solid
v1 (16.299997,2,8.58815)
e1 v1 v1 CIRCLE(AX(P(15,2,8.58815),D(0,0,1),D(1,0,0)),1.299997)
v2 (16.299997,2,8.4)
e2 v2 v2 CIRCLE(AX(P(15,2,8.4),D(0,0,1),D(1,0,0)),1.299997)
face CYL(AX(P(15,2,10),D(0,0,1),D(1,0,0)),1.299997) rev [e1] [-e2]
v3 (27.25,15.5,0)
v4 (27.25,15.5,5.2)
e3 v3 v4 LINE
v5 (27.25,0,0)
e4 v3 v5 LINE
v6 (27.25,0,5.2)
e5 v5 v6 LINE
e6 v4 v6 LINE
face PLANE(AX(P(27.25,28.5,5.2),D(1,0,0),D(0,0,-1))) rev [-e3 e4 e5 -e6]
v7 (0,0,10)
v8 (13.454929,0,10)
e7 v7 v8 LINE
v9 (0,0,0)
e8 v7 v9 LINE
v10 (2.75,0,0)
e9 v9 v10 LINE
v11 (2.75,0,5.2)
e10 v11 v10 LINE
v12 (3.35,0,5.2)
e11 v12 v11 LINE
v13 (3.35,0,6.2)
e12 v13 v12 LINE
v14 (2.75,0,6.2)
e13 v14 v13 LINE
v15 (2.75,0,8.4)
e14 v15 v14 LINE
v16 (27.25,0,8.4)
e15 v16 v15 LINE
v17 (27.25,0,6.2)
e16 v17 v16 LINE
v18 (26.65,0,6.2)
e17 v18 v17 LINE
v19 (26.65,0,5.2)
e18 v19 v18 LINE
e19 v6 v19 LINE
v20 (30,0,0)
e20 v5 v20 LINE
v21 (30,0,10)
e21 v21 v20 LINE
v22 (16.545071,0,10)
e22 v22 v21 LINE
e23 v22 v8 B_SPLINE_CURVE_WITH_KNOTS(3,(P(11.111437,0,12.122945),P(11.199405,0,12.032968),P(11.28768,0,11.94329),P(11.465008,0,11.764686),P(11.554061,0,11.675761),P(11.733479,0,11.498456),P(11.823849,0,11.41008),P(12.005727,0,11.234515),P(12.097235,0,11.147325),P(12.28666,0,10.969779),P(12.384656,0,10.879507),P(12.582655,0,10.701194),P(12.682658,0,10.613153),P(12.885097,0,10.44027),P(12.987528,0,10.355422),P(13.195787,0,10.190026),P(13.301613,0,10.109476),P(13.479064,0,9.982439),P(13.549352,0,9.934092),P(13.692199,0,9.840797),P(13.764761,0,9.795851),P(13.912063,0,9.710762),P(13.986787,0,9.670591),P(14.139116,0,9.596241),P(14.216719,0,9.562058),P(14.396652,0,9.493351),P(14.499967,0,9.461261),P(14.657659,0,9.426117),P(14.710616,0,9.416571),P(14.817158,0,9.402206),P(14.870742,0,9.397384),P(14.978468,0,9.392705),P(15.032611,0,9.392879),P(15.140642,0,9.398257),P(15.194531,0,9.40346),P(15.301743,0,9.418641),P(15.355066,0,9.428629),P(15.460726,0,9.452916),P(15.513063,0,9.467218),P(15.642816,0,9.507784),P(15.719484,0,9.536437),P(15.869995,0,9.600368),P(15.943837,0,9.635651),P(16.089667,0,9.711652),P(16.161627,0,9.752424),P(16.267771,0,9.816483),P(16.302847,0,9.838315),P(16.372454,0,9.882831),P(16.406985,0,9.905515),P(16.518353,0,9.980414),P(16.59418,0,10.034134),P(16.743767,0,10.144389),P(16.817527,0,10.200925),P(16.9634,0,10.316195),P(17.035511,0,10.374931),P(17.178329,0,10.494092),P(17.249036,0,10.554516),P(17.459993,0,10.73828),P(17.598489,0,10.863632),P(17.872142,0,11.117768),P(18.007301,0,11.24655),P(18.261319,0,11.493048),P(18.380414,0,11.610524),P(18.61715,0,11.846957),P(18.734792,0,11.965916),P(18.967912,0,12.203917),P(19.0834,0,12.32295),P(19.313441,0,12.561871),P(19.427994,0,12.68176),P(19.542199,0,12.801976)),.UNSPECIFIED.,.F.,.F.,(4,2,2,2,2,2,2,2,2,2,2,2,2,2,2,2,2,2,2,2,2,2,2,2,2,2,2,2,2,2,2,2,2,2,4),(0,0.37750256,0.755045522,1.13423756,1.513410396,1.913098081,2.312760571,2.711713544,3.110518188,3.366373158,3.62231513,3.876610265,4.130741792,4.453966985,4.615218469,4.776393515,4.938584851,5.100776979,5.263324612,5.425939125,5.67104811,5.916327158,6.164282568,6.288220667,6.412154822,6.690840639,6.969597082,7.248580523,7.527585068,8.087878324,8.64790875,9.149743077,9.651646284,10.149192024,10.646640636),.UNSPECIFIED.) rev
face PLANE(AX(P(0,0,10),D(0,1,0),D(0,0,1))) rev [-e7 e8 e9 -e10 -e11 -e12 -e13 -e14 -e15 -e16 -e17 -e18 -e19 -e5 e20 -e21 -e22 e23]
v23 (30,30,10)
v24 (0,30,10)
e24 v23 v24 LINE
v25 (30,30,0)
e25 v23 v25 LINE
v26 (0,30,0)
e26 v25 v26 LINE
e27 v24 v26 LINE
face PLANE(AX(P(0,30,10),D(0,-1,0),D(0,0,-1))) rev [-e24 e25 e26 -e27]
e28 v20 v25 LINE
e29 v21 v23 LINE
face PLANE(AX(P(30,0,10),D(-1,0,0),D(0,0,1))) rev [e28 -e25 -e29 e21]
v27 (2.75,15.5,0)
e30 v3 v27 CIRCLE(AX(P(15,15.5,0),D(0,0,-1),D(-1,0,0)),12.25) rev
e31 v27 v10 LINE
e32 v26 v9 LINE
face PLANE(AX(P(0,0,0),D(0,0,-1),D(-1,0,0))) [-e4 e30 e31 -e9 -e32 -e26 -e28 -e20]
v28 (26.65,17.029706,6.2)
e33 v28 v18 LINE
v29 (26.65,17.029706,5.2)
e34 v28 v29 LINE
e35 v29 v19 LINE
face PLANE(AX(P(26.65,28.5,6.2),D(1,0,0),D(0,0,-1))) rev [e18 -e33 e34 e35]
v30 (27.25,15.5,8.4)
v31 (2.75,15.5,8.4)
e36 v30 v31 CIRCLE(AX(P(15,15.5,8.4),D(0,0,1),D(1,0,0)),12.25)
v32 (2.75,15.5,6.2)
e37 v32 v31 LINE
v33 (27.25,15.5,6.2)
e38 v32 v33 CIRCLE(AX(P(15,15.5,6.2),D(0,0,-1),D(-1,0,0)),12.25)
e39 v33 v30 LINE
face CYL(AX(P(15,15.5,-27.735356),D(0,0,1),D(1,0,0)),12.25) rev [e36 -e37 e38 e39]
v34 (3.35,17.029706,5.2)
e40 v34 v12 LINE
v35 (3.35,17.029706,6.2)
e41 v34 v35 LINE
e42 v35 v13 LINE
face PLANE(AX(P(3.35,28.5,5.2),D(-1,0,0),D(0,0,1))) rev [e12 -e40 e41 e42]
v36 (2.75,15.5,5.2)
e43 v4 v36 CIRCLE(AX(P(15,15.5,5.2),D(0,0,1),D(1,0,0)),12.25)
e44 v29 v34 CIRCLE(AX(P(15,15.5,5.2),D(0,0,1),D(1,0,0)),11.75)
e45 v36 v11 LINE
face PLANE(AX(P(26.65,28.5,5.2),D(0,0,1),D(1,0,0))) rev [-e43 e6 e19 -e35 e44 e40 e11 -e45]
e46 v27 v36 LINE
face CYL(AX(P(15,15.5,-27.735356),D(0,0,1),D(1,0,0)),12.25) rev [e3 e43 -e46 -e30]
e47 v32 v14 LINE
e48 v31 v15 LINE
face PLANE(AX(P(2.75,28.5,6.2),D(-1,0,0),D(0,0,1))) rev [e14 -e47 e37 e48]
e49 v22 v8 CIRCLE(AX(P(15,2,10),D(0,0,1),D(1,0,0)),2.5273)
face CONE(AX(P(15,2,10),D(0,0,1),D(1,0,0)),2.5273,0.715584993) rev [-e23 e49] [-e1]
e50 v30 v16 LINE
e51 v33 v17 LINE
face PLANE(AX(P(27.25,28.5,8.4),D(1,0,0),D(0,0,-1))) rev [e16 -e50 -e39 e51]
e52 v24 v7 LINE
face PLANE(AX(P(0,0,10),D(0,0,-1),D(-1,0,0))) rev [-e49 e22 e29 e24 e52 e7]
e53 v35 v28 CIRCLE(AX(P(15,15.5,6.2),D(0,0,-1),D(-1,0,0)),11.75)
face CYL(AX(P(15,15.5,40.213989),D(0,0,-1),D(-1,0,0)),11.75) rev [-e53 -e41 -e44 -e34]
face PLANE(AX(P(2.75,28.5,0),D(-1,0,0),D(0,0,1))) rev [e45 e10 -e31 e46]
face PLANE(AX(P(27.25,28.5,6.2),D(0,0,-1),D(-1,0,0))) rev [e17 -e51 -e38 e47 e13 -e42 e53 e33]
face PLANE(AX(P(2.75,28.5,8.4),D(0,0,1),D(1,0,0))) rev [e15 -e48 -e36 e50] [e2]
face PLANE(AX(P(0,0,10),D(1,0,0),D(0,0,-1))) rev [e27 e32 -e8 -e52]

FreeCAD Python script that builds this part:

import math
import FreeCAD as App
import Part
import Sketcher

doc = App.newDocument("Part")
body = doc.addObject("PartDesign::Body", "Body")

# Sketch on XY plane
sketch1 = body.newObject("Sketcher::SketchObject", "Sketch")
sketch1.AttachmentSupport = (doc.getObject("XY_Plane"), [""])
sketch1.MapMode = "FlatFace"
sketch1.addGeometry(Part.LineSegment(App.Vector(0, 30, 0), App.Vector(0, 0, 0)), False)
sketch1.addGeometry(Part.LineSegment(App.Vector(0, 0, 0), App.Vector(30, 0, 0)), False)
sketch1.addGeometry(Part.LineSegment(App.Vector(30, 0, 0), App.Vector(30, 30, 0)), False)
sketch1.addGeometry(Part.LineSegment(App.Vector(30, 30, 0), App.Vector(0, 30, 0)), False)
sketch1.addConstraint(Sketcher.Constraint("Coincident", 0, 2, 1, 1))
sketch1.addConstraint(Sketcher.Constraint("Coincident", 1, 2, 2, 1))
sketch1.addConstraint(Sketcher.Constraint("Coincident", 2, 2, 3, 1))
sketch1.addConstraint(Sketcher.Constraint("Coincident", 3, 2, 0, 1))
sketch1.addConstraint(Sketcher.Constraint("Vertical", 0))
sketch1.addConstraint(Sketcher.Constraint("Horizontal", 1))
sketch1.addConstraint(Sketcher.Constraint("Vertical", 2))
sketch1.addConstraint(Sketcher.Constraint("Horizontal", 3))
sketch1.addConstraint(Sketcher.Constraint("Coincident", 0, 2, -1, 1))
sketch1.addConstraint(Sketcher.Constraint("Equal", 3, 0))
sketch1.addConstraint(Sketcher.Constraint("DistanceX", 1, 1, 1, 2, 30.0))
pad1 = body.newObject("PartDesign::Pad", "Pad")
pad1.Profile = sketch1
pad1.Length = 10

# Sketch on XZ plane
sketch2 = body.newObject("Sketcher::SketchObject", "Sketch001")
sketch2.AttachmentSupport = (doc.getObject("XZ_Plane"), [""])
sketch2.MapMode = "FlatFace"
sketch2.addGeometry(Part.LineSegment(App.Vector(2.8, 5.2, 0), App.Vector(2.8, 0, 0)), False)
sketch2.addGeometry(Part.LineSegment(App.Vector(2.8, 0, 0), App.Vector(27.2, 0, 0)), False)
sketch2.addGeometry(Part.LineSegment(App.Vector(27.2, 0, 0), App.Vector(27.2, 5.2, 0)), False)
sketch2.addGeometry(Part.LineSegment(App.Vector(27.2, 5.2, 0), App.Vector(26.6, 5.2, 0)), False)
sketch2.addGeometry(Part.LineSegment(App.Vector(26.6, 5.2, 0), App.Vector(26.6, 6.2, 0)), False)
sketch2.addGeometry(Part.LineSegment(App.Vector(26.6, 6.2, 0), App.Vector(27.2, 6.2, 0)), False)
sketch2.addGeometry(Part.LineSegment(App.Vector(27.2, 6.2, 0), App.Vector(27.2, 8.4, 0)), False)
sketch2.addGeometry(Part.LineSegment(App.Vector(27.2, 8.4, 0), App.Vector(2.8, 8.4, 0)), False)
sketch2.addGeometry(Part.LineSegment(App.Vector(2.8, 8.4, 0), App.Vector(2.8, 6.2, 0)), False)
sketch2.addGeometry(Part.LineSegment(App.Vector(2.8, 6.2, 0), App.Vector(3.4, 6.2, 0)), False)
sketch2.addGeometry(Part.LineSegment(App.Vector(3.4, 6.2, 0), App.Vector(3.4, 5.2, 0)), False)
sketch2.addGeometry(Part.LineSegment(App.Vector(3.4, 5.2, 0), App.Vector(2.8, 5.2, 0)), False)
sketch2.addConstraint(Sketcher.Constraint("Coincident", 0, 2, 1, 1))
sketch2.addConstraint(Sketcher.Constraint("Coincident", 1, 2, 2, 1))
sketch2.addConstraint(Sketcher.Constraint("Coincident", 2, 2, 3, 1))
sketch2.addConstraint(Sketcher.Constraint("Coincident", 3, 2, 4, 1))
sketch2.addConstraint(Sketcher.Constraint("Coincident", 4, 2, 5, 1))
sketch2.addConstraint(Sketcher.Constraint("Coincident", 5, 2, 6, 1))
sketch2.addConstraint(Sketcher.Constraint("Coincident", 6, 2, 7, 1))
sketch2.addConstraint(Sketcher.Constraint("Coincident", 7, 2, 8, 1))
sketch2.addConstraint(Sketcher.Constraint("Coincident", 8, 2, 9, 1))
sketch2.addConstraint(Sketcher.Constraint("Coincident", 9, 2, 10, 1))
sketch2.addConstraint(Sketcher.Constraint("Coincident", 10, 2, 11, 1))
sketch2.addConstraint(Sketcher.Constraint("Coincident", 11, 2, 0, 1))
sketch2.addConstraint(Sketcher.Constraint("Vertical", 0))
sketch2.addConstraint(Sketcher.Constraint("Horizontal", 1))
sketch2.addConstraint(Sketcher.Constraint("Vertical", 2))
sketch2.addConstraint(Sketcher.Constraint("Horizontal", 3))
sketch2.addConstraint(Sketcher.Constraint("Vertical", 4))
sketch2.addConstraint(Sketcher.Constraint("Horizontal", 5))
sketch2.addConstraint(Sketcher.Constraint("Vertical", 6))
sketch2.addConstraint(Sketcher.Constraint("Horizontal", 7))
sketch2.addConstraint(Sketcher.Constraint("Vertical", 8))
sketch2.addConstraint(Sketcher.Constraint("Horizontal", 9))
sketch2.addConstraint(Sketcher.Constraint("Vertical", 10))
sketch2.addConstraint(Sketcher.Constraint("Horizontal", 11))
sketch2.addConstraint(Sketcher.Constraint("PointOnObject", 0, 2, -1))
sketch2.addConstraint(Sketcher.Constraint("Horizontal", 5, 2, 8, 2))
sketch2.addConstraint(Sketcher.Constraint("Horizontal", 3, 2, 10, 2))
sketch2.addConstraint(Sketcher.Constraint("Vertical", 2, 2, 5, 2))
sketch2.addConstraint(Sketcher.Constraint("Vertical", 0, 2, 7, 2))
sketch2.addConstraint(Sketcher.Constraint("Equal", 5, 9))
sketch2.addConstraint(Sketcher.Constraint("DistanceY", 4, 1, 4, 2, 1.0))
sketch2.addConstraint(Sketcher.Constraint("DistanceX", 1, 1, 1, 2, 24.5))
sketch2.addConstraint(Sketcher.Constraint("DistanceX", 3, 2, 3, 1, 0.6))
sketch2.addConstraint(Sketcher.Constraint("DistanceY", 0, 2, 0, 1, 5.2))
sketch2.addConstraint(Sketcher.Constraint("DistanceY", 6, 1, 6, 2, 2.2))
sketch2.addConstraint(Sketcher.Constraint("DistanceX", -1, 1, 0, 2, 2.75))
pocket1 = body.newObject("PartDesign::Pocket", "Pocket")
pocket1.Profile = sketch2
pocket1.Length = 28.5

# Sketch on XY plane
sketch3 = body.newObject("Sketcher::SketchObject", "Sketch002")
sketch3.AttachmentSupport = (doc.getObject("XY_Plane"), [""])
sketch3.MapMode = "FlatFace"
sketch3.AttachmentOffset = App.Placement(App.Vector(0, 0, 8.4), App.Rotation())
sketch3.addGeometry(Part.LineSegment(App.Vector(27, 28, 0), App.Vector(27, 16, 0)), False)
sketch3.addGeometry(Part.ArcOfCircle(Part.Circle(App.Vector(15, 16, 0), App.Vector(0, 0, 1), 12), math.radians(0), math.radians(180)), False)
sketch3.addGeometry(Part.LineSegment(App.Vector(3, 16, 0), App.Vector(3, 28, 0)), False)
sketch3.addGeometry(Part.LineSegment(App.Vector(3, 28, 0), App.Vector(27, 28, 0)), False)
sketch3.addConstraint(Sketcher.Constraint("Tangent", 0, 2, 1, 1))
sketch3.addConstraint(Sketcher.Constraint("Tangent", 1, 2, 2, 1))
sketch3.addConstraint(Sketcher.Constraint("Coincident", 2, 2, 3, 1))
sketch3.addConstraint(Sketcher.Constraint("Coincident", 3, 2, 0, 1))
sketch3.addConstraint(Sketcher.Constraint("Vertical", 0))
sketch3.addConstraint(Sketcher.Constraint("Vertical", 2))
sketch3.addConstraint(Sketcher.Constraint("Horizontal", 3))
sketch3.addConstraint(Sketcher.Constraint("DistanceY", 0, 2, 0, 1, 13.0))
sketch3.addConstraint(Sketcher.Constraint("Radius", 1, 12.25))
sketch3.addConstraint(Sketcher.Constraint("DistanceX", -1, 1, 1, 3, 15.0))
sketch3.addConstraint(Sketcher.Constraint("DistanceY", -1, 1, 1, 3, 15.5))
pad2 = body.newObject("PartDesign::Pad", "Pad001")
pad2.Profile = sketch3
pad2.Length = 8.4
pad2.Reversed = True

# Sketch on XY plane
sketch4 = body.newObject("Sketcher::SketchObject", "Sketch003")
sketch4.AttachmentSupport = (doc.getObject("XY_Plane"), [""])
sketch4.MapMode = "FlatFace"
sketch4.AttachmentOffset = App.Placement(App.Vector(0, 0, 5.2), App.Rotation())
sketch4.addGeometry(Part.LineSegment(App.Vector(3.4, 14, 0), App.Vector(0, 14, 0)), False)
sketch4.addGeometry(Part.LineSegment(App.Vector(0, 14, 0), App.Vector(0, 30, 0)), False)
sketch4.addGeometry(Part.LineSegment(App.Vector(0, 30, 0), App.Vector(30, 30, 0)), False)
sketch4.addGeometry(Part.LineSegment(App.Vector(30, 30, 0), App.Vector(30, 14, 0)), False)
sketch4.addGeometry(Part.LineSegment(App.Vector(30, 14, 0), App.Vector(26.6, 14, 0)), False)
sketch4.addGeometry(Part.ArcOfCircle(Part.Circle(App.Vector(15, 15.5, 0), App.Vector(0, 0, 1), 11.8), math.radians(-7), math.radians(187)), False)
sketch4.addConstraint(Sketcher.Constraint("Coincident", 0, 2, 1, 1))
sketch4.addConstraint(Sketcher.Constraint("Coincident", 1, 2, 2, 1))
sketch4.addConstraint(Sketcher.Constraint("Coincident", 2, 2, 3, 1))
sketch4.addConstraint(Sketcher.Constraint("Coincident", 3, 2, 4, 1))
sketch4.addConstraint(Sketcher.Constraint("Coincident", 4, 2, 5, 1))
sketch4.addConstraint(Sketcher.Constraint("Coincident", 5, 2, 0, 1))
sketch4.addConstraint(Sketcher.Constraint("Horizontal", 0))
sketch4.addConstraint(Sketcher.Constraint("Vertical", 1))
sketch4.addConstraint(Sketcher.Constraint("Horizontal", 2))
sketch4.addConstraint(Sketcher.Constraint("Vertical", 3))
sketch4.addConstraint(Sketcher.Constraint("Horizontal", 4))
sketch4.addConstraint(Sketcher.Constraint("PointOnObject", 0, 2, -2))
sketch4.addConstraint(Sketcher.Constraint("Horizontal", 0, 2, 3, 2))
sketch4.addConstraint(Sketcher.Constraint("Equal", 0, 4))
sketch4.addConstraint(Sketcher.Constraint("DistanceX", 2, 1, 2, 2, 30.0))
sketch4.addConstraint(Sketcher.Constraint("Radius", 5, 11.75))
sketch4.addConstraint(Sketcher.Constraint("DistanceY", -1, 1, 1, 2, 30.0))
sketch4.addConstraint(Sketcher.Constraint("DistanceX", 0, 2, 0, 1, 3.35))
sketch4.addConstraint(Sketcher.Constraint("DistanceY", -1, 1, 5, 3, 15.5))
pad3 = body.newObject("PartDesign::Pad", "Pad002")
pad3.Profile = sketch4
pad3.Length = 1

# Sketch on XY plane
sketch5 = body.newObject("Sketcher::SketchObject", "Sketch004")
sketch5.AttachmentSupport = (doc.getObject("XY_Plane"), [""])
sketch5.MapMode = "FlatFace"
sketch5.AttachmentOffset = App.Placement(App.Vector(0, 0, 10), App.Rotation())
sketch5.addGeometry(Part.Circle(App.Vector(15, 2, 0), App.Vector(0, 0, 1), 1.3), False)
sketch5.addConstraint(Sketcher.Constraint("DistanceX", -1, 1, 0, 3, 15.0))
sketch5.addConstraint(Sketcher.Constraint("DistanceY", -1, 1, 0, 3, 2.0))
sketch5.addConstraint(Sketcher.Constraint("Diameter", 0, 2.599995))
doc.recompute()
hole = body.newObject("PartDesign::Hole", "Hole")
hole.Profile = sketch5
hole.ThreadType = "None"
hole.Diameter = 2.599995
hole.DepthType = "ThroughAll"
hole.HoleCutType = "Countersink"
hole.HoleCutDiameter = 5.0546
hole.HoleCutCountersinkAngle = 82

doc.recompute()
